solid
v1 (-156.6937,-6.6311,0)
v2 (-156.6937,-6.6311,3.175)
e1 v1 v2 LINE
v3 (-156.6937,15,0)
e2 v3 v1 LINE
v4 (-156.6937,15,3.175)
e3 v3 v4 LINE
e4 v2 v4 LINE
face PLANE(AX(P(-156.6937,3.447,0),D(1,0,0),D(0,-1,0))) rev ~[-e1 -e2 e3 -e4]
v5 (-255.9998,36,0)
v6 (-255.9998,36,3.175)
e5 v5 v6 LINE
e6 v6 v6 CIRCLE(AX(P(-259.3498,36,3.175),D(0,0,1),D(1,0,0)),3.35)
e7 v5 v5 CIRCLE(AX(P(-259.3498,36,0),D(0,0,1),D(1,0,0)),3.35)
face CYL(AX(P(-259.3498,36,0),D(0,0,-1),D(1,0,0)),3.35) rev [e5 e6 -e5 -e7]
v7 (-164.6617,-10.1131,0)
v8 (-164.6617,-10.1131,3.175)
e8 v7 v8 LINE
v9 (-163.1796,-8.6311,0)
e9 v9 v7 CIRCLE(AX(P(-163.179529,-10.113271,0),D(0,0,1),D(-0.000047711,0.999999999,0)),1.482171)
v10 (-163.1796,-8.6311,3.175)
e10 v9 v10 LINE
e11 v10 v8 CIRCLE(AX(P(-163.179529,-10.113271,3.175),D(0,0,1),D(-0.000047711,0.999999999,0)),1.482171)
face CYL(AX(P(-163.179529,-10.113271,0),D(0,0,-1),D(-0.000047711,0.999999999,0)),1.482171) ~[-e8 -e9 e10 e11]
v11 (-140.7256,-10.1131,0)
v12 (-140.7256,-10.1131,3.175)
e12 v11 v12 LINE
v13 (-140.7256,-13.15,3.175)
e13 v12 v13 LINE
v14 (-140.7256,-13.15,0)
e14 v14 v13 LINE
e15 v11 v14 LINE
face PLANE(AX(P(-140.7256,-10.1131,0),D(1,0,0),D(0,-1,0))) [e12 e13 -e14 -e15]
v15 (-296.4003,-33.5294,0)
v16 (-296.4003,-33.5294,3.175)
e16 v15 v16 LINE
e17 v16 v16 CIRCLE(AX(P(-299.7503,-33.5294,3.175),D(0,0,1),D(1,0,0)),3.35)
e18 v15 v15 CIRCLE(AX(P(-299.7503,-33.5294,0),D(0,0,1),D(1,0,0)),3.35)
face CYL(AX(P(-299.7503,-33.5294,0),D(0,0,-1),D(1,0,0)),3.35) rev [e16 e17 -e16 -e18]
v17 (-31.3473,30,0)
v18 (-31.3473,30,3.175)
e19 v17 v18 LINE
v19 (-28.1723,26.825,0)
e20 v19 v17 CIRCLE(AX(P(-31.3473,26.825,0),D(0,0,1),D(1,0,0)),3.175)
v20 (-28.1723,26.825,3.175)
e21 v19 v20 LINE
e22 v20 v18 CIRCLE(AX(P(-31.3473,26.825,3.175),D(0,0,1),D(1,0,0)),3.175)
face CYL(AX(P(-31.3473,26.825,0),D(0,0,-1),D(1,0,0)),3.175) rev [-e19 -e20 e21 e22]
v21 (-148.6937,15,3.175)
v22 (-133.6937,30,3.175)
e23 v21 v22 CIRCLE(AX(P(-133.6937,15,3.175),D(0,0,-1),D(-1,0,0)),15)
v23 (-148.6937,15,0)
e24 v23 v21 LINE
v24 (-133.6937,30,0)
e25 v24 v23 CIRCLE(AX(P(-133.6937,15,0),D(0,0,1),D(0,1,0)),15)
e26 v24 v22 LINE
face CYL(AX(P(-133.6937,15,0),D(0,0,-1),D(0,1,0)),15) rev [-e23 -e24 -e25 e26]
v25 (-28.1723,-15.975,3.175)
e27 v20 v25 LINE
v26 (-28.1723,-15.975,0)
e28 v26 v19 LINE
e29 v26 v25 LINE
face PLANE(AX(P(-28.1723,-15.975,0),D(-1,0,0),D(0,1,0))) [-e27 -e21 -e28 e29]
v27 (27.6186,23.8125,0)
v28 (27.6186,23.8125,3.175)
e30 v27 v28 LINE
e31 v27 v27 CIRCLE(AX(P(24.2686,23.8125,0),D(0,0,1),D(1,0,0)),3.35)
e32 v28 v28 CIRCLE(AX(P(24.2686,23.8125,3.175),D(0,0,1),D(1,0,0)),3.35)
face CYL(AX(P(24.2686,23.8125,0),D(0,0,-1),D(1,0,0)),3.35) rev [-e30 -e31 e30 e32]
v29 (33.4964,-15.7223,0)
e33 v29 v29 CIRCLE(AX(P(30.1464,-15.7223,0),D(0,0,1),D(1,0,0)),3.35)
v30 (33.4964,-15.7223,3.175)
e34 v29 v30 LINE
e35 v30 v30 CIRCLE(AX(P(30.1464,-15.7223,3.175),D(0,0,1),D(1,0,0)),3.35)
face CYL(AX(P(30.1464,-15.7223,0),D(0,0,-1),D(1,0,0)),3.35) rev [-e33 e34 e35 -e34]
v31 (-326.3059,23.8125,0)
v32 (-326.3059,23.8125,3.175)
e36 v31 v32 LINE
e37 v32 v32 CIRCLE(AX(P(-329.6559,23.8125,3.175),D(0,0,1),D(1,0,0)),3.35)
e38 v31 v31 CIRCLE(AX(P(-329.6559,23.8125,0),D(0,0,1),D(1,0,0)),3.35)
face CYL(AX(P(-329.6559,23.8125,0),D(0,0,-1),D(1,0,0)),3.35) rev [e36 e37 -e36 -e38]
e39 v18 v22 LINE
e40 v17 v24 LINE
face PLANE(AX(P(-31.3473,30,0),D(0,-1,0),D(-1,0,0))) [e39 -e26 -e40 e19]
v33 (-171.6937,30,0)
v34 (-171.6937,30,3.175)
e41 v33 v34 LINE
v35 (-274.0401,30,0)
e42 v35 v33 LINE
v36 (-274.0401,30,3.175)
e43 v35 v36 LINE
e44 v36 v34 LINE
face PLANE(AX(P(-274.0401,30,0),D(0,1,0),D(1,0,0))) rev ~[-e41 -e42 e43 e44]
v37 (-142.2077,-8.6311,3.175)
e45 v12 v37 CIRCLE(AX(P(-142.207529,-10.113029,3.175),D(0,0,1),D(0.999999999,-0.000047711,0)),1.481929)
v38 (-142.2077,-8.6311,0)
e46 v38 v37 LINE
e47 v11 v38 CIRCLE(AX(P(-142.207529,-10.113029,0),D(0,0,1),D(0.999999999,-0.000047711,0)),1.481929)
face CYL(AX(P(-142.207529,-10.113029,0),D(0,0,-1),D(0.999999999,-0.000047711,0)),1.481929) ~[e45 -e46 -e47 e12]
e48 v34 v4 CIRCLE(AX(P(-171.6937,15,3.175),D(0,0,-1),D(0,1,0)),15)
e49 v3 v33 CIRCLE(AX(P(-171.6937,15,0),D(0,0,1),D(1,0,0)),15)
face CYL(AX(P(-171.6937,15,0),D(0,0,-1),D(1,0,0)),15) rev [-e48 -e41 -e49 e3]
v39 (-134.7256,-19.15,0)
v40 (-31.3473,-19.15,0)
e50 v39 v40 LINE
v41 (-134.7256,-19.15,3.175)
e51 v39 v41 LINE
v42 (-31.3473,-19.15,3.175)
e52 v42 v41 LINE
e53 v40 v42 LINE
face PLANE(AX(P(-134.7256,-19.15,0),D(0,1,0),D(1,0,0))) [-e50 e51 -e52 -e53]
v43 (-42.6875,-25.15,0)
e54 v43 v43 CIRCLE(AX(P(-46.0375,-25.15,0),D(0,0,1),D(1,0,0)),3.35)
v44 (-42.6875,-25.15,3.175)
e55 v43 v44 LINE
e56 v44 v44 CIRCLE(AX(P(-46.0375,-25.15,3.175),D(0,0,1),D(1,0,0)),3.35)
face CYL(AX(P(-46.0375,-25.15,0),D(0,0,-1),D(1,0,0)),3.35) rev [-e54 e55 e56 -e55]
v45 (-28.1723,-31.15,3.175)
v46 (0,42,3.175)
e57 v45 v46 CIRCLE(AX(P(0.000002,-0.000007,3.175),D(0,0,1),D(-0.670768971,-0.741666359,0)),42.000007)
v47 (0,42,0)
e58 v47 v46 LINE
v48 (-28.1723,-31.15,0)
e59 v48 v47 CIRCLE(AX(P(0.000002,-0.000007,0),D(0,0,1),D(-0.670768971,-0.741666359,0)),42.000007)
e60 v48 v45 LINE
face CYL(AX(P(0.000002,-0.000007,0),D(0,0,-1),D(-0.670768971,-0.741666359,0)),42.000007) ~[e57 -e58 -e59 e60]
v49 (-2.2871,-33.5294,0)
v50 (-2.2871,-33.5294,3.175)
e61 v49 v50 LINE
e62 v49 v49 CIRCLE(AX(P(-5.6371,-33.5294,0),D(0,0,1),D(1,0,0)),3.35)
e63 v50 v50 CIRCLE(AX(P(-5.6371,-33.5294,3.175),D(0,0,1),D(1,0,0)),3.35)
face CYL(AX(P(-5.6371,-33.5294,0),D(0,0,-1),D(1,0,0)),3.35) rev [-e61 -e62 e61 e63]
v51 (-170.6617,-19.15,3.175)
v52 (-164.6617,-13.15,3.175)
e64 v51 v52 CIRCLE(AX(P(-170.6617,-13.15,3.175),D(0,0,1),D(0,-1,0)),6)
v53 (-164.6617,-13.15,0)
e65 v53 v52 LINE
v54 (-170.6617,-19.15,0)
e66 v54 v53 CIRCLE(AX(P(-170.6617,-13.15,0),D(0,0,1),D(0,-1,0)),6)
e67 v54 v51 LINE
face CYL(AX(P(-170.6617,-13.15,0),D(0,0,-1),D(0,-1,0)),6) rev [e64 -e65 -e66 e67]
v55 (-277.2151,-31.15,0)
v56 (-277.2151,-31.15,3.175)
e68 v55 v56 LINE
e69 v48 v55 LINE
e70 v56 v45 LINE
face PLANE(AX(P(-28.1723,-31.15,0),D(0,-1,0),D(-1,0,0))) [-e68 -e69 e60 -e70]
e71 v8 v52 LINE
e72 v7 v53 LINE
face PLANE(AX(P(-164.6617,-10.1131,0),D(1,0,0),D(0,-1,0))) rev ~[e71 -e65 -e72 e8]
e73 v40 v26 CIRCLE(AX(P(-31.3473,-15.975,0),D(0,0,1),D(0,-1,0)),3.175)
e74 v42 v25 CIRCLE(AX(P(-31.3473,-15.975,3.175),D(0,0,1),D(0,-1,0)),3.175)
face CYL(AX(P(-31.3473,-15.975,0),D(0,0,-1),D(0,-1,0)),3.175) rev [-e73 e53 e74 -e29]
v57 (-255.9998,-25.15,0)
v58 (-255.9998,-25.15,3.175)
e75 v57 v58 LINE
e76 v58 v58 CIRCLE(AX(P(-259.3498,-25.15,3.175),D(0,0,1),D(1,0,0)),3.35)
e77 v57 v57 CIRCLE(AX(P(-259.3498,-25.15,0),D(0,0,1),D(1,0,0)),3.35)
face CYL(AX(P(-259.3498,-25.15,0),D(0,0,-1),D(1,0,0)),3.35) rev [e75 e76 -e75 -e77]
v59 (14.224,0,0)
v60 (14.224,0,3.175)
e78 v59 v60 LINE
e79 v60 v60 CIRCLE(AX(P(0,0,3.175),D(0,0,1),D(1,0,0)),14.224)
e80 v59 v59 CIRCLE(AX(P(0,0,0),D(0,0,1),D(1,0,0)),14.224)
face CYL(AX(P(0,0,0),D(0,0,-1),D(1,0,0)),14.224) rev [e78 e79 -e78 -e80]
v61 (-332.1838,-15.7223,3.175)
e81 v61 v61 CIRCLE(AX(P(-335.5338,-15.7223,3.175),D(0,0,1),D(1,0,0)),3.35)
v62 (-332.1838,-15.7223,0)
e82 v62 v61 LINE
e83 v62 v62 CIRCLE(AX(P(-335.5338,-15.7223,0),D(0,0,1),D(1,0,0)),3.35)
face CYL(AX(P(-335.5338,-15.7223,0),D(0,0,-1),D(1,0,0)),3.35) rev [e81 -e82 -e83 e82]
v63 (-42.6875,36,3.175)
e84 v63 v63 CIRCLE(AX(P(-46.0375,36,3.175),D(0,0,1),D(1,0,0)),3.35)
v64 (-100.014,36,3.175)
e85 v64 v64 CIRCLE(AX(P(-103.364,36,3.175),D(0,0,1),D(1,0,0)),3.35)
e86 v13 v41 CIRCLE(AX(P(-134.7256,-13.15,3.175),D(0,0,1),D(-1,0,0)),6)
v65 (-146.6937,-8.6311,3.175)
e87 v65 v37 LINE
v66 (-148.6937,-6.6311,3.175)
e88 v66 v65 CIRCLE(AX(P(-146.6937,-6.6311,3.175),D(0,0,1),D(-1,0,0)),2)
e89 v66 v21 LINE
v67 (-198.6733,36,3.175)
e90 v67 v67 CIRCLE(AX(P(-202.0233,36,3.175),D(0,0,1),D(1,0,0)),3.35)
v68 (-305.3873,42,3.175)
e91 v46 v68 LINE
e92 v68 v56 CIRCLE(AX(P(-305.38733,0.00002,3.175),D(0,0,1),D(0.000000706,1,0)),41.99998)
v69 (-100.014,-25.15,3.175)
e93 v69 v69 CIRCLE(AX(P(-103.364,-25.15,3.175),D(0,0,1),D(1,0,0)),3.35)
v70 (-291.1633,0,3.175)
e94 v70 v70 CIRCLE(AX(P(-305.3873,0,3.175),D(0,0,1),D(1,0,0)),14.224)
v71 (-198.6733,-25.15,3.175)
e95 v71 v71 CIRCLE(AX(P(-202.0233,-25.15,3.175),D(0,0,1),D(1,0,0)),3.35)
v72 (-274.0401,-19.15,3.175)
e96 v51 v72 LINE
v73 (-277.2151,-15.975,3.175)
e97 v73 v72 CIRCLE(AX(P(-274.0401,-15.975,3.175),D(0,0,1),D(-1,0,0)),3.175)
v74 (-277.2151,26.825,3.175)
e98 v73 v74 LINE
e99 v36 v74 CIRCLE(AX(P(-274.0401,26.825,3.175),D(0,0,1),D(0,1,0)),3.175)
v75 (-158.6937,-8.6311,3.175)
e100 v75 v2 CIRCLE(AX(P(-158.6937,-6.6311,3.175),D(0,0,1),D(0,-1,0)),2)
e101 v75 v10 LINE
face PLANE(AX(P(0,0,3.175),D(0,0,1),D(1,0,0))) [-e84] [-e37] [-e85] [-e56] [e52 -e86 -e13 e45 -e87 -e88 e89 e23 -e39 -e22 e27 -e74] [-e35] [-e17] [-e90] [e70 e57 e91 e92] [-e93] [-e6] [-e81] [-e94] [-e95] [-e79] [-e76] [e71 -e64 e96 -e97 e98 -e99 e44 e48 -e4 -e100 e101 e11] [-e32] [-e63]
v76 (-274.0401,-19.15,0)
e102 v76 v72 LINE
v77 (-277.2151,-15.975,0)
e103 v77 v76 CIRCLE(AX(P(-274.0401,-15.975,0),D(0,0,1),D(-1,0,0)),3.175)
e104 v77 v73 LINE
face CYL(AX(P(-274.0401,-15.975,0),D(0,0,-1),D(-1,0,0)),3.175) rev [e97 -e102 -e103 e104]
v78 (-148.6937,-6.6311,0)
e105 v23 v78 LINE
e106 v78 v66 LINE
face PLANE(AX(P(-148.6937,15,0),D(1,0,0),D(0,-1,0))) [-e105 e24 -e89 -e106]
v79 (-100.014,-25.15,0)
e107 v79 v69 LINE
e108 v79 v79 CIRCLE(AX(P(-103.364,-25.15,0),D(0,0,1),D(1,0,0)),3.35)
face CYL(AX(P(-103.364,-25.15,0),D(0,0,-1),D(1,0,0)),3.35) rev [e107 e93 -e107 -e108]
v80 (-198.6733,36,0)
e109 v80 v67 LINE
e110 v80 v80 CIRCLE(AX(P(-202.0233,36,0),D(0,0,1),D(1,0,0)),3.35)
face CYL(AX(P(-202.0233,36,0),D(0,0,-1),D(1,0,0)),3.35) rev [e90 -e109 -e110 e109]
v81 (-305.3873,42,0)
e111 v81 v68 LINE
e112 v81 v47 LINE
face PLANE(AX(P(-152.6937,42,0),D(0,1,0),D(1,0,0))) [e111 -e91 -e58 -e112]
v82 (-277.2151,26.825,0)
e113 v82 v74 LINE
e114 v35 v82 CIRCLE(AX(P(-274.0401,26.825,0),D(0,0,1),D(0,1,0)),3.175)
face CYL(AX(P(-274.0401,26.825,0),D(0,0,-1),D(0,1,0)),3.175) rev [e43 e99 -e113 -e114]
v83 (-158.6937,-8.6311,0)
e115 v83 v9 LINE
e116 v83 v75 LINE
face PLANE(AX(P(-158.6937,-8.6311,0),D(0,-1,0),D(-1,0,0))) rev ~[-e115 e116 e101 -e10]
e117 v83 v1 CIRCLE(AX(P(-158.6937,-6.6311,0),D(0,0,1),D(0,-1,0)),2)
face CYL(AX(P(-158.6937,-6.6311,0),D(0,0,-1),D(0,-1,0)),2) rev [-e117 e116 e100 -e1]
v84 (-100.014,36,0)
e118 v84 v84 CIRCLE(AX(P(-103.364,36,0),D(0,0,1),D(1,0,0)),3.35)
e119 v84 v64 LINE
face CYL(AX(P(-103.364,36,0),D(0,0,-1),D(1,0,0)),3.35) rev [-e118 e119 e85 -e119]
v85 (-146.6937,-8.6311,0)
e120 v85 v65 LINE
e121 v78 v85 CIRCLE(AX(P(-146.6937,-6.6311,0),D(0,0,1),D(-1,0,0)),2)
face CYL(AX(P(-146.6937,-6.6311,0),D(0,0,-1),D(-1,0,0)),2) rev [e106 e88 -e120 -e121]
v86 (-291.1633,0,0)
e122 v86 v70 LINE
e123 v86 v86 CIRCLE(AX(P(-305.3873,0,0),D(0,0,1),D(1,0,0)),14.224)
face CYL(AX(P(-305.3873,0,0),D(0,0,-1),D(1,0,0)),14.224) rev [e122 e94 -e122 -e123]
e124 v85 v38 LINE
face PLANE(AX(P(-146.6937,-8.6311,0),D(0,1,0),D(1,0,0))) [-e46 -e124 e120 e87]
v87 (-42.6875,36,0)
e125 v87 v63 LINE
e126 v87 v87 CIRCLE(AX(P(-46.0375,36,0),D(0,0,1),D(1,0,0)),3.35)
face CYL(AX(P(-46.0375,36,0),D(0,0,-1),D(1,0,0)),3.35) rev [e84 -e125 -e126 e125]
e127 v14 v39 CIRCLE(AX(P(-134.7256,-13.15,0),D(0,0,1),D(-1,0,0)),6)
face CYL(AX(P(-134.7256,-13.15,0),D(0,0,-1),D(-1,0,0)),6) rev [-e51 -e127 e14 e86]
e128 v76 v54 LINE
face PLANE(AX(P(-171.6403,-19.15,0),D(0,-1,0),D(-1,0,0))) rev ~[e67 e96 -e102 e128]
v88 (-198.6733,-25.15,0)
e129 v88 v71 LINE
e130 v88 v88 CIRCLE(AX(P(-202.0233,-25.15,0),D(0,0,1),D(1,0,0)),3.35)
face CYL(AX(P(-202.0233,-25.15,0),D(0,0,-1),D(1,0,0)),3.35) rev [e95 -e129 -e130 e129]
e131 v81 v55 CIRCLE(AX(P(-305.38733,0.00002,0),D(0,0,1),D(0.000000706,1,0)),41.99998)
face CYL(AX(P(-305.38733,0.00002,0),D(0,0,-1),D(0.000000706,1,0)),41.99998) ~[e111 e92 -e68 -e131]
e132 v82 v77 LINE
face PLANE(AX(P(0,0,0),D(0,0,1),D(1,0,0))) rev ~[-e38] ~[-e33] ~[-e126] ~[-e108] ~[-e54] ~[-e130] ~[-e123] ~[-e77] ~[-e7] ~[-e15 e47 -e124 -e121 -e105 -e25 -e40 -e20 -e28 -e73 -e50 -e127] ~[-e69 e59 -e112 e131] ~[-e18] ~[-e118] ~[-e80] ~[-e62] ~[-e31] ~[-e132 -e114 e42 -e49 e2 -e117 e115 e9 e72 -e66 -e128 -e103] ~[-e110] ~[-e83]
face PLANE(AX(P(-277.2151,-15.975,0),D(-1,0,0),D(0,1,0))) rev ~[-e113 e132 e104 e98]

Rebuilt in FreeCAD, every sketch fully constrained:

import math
import FreeCAD as App
import Part
import Sketcher
from FreeCAD import Vector

doc = App.newDocument("Part")
body = doc.addObject("PartDesign::Body", "Body")

# Sketch on XY plane
sketch1 = body.newObject("Sketcher::SketchObject", "Sketch")
sketch1.AttachmentSupport = (doc.getObject("XY_Plane"), [""])
sketch1.MapMode = "FlatFace"
sketch1.addGeometry([
    Part.ArcOfCircle(Part.Circle(Vector(0, 0, 0), Vector(0, 0, 1), 42), math.radians(-132), math.radians(90)),  # 0
    Part.LineSegment(Vector(0, 42, 0), Vector(-305.4, 42, 0)),  # 1
    Part.ArcOfCircle(Part.Circle(Vector(-305.4, 0, 0), Vector(0, 0, 1), 42), math.radians(90), math.radians(312)),  # 2
    Part.LineSegment(Vector(-277.2, -31.1, 0), Vector(-28.2, -31.1, 0)),  # 3
    Part.ArcOfCircle(Part.Circle(Vector(-158.7, -6.6, 0), Vector(0, 0, 1), 2), math.radians(-90), math.radians(0)),  # 4
    Part.LineSegment(Vector(-158.7, -8.6, 0), Vector(-163.2, -8.6, 0)),  # 5
    Part.ArcOfCircle(Part.Circle(Vector(-163.2, -10.1, 0), Vector(0, 0, 1), 1.5), math.radians(90), math.radians(180)),  # 6
    Part.LineSegment(Vector(-164.7, -10.1, 0), Vector(-164.7, -13.2, 0)),  # 7
    Part.ArcOfCircle(Part.Circle(Vector(-170.7, -13.2, 0), Vector(0, 0, 1), 6), math.radians(-90), math.radians(0)),  # 8
    Part.LineSegment(Vector(-170.7, -19.1, 0), Vector(-274, -19.1, 0)),  # 9
    Part.ArcOfCircle(Part.Circle(Vector(-274, -16, 0), Vector(0, 0, 1), 3.2), math.radians(180), math.radians(270)),  # 10
    Part.LineSegment(Vector(-277.2, -16, 0), Vector(-277.2, 26.8, 0)),  # 11
    Part.ArcOfCircle(Part.Circle(Vector(-274, 26.8, 0), Vector(0, 0, 1), 3.2), math.radians(90), math.radians(180)),  # 12
    Part.LineSegment(Vector(-274, 30, 0), Vector(-171.7, 30, 0)),  # 13
    Part.ArcOfCircle(Part.Circle(Vector(-171.7, 15, 0), Vector(0, 0, 1), 15), math.radians(0), math.radians(90)),  # 14
    Part.LineSegment(Vector(-156.7, 15, 0), Vector(-156.7, -6.6, 0)),  # 15
    Part.Circle(Vector(-299.8, -33.5, 0), Vector(0, 0, 1), 3.4),  # 16
    Part.Circle(Vector(-259.3, -25.1, 0), Vector(0, 0, 1), 3.4),  # 17
    Part.Circle(Vector(-202, -25.1, 0), Vector(0, 0, 1), 3.4),  # 18
    Part.Circle(Vector(-335.5, -15.7, 0), Vector(0, 0, 1), 3.4),  # 19
    Part.Circle(Vector(-103.4, -25.1, 0), Vector(0, 0, 1), 3.4),  # 20
    Part.Circle(Vector(-5.6, -33.5, 0), Vector(0, 0, 1), 3.4),  # 21
    Part.Circle(Vector(-46, -25.1, 0), Vector(0, 0, 1), 3.4),  # 22
    Part.Circle(Vector(30.1, -15.7, 0), Vector(0, 0, 1), 3.4),  # 23
    Part.Circle(Vector(-305.4, 0, 0), Vector(0, 0, 1), 14.2),  # 24
    Part.Circle(Vector(-329.7, 23.8, 0), Vector(0, 0, 1), 3.4),  # 25
    Part.Circle(Vector(-259.3, 36, 0), Vector(0, 0, 1), 3.4),  # 26
    Part.Circle(Vector(-202, 36, 0), Vector(0, 0, 1), 3.4),  # 27
    Part.ArcOfCircle(Part.Circle(Vector(-133.7, 15, 0), Vector(0, 0, 1), 15), math.radians(90), math.radians(180)),  # 28
    Part.LineSegment(Vector(-133.7, 30, 0), Vector(-31.3, 30, 0)),  # 29
    Part.ArcOfCircle(Part.Circle(Vector(-31.3, 26.8, 0), Vector(0, 0, 1), 3.2), math.radians(0), math.radians(90)),  # 30
    Part.LineSegment(Vector(-28.2, 26.8, 0), Vector(-28.2, -16, 0)),  # 31
    Part.ArcOfCircle(Part.Circle(Vector(-31.3, -16, 0), Vector(0, 0, 1), 3.2), math.radians(-90), math.radians(0)),  # 32
    Part.LineSegment(Vector(-31.3, -19.1, 0), Vector(-134.7, -19.1, 0)),  # 33
    Part.ArcOfCircle(Part.Circle(Vector(-134.7, -13.2, 0), Vector(0, 0, 1), 6), math.radians(180), math.radians(270)),  # 34
    Part.LineSegment(Vector(-140.7, -13.2, 0), Vector(-140.7, -10.1, 0)),  # 35
    Part.ArcOfCircle(Part.Circle(Vector(-142.2, -10.1, 0), Vector(0, 0, 1), 1.5), math.radians(0), math.radians(90)),  # 36
    Part.LineSegment(Vector(-142.2, -8.6, 0), Vector(-146.7, -8.6, 0)),  # 37
    Part.ArcOfCircle(Part.Circle(Vector(-146.7, -6.6, 0), Vector(0, 0, 1), 2), math.radians(180), math.radians(270)),  # 38
    Part.LineSegment(Vector(-148.7, -6.6, 0), Vector(-148.7, 15, 0)),  # 39
    Part.Circle(Vector(0, 0, 0), Vector(0, 0, 1), 14.2),  # 40
    Part.Circle(Vector(-103.4, 36, 0), Vector(0, 0, 1), 3.4),  # 41
    Part.Circle(Vector(24.3, 23.8, 0), Vector(0, 0, 1), 3.4),  # 42
    Part.Circle(Vector(-46, 36, 0), Vector(0, 0, 1), 3.4),  # 43
], False)
sketch1.addConstraint([
    Sketcher.Constraint("Tangent", 0, 2, 1, 1),
    Sketcher.Constraint("Tangent", 1, 2, 2, 1),
    Sketcher.Constraint("Coincident", 2, 2, 3, 1),
    Sketcher.Constraint("Coincident", 3, 2, 0, 1),
    Sketcher.Constraint("Tangent", 4, 1, 5, 1),
    Sketcher.Constraint("Tangent", 5, 2, 6, 1),
    Sketcher.Constraint("Tangent", 6, 2, 7, 1),
    Sketcher.Constraint("Tangent", 7, 2, 8, 2),
    Sketcher.Constraint("Tangent", 8, 1, 9, 1),
    Sketcher.Constraint("Tangent", 9, 2, 10, 2),
    Sketcher.Constraint("Tangent", 10, 1, 11, 1),
    Sketcher.Constraint("Tangent", 11, 2, 12, 2),
    Sketcher.Constraint("Tangent", 12, 1, 13, 1),
    Sketcher.Constraint("Tangent", 13, 2, 14, 2),
    Sketcher.Constraint("Tangent", 14, 1, 15, 1),
    Sketcher.Constraint("Tangent", 15, 2, 4, 2),
    Sketcher.Constraint("Tangent", 28, 1, 29, 1),
    Sketcher.Constraint("Tangent", 29, 2, 30, 2),
    Sketcher.Constraint("Tangent", 30, 1, 31, 1),
    Sketcher.Constraint("Tangent", 31, 2, 32, 2),
    Sketcher.Constraint("Tangent", 32, 1, 33, 1),
    Sketcher.Constraint("Tangent", 33, 2, 34, 2),
    Sketcher.Constraint("Tangent", 34, 1, 35, 1),
    Sketcher.Constraint("Tangent", 35, 2, 36, 1),
    Sketcher.Constraint("Tangent", 36, 2, 37, 1),
    Sketcher.Constraint("Tangent", 37, 2, 38, 2),
    Sketcher.Constraint("Tangent", 38, 1, 39, 1),
    Sketcher.Constraint("Tangent", 39, 2, 28, 2),
    Sketcher.Constraint("Horizontal", 1),
    Sketcher.Constraint("Horizontal", 3),
    Sketcher.Constraint("Horizontal", 5),
    Sketcher.Constraint("Vertical", 7),
    Sketcher.Constraint("Horizontal", 9),
    Sketcher.Constraint("Vertical", 11),
    Sketcher.Constraint("Horizontal", 13),
    Sketcher.Constraint("Vertical", 15),
    Sketcher.Constraint("Horizontal", 29),
    Sketcher.Constraint("Vertical", 31),
    Sketcher.Constraint("Horizontal", 33),
    Sketcher.Constraint("Vertical", 35),
    Sketcher.Constraint("Horizontal", 37),
    Sketcher.Constraint("Vertical", 39),
    Sketcher.Constraint("Coincident", 0, 3, -1, 1),
    Sketcher.Constraint("Coincident", 40, 3, -1, 1),
    Sketcher.Constraint("Coincident", 24, 3, 2, 3),
    Sketcher.Constraint("Equal", 0, 2),
    Sketcher.Constraint("Equal", 10, 12),
    Sketcher.Constraint("Equal", 16, 17),
    Sketcher.Constraint("Equal", 17, 18),
    Sketcher.Constraint("Equal", 18, 19),
    Sketcher.Constraint("Equal", 19, 20),
    Sketcher.Constraint("Equal", 20, 21),
    Sketcher.Constraint("Equal", 21, 22),
    Sketcher.Constraint("Equal", 22, 23),
    Sketcher.Constraint("Equal", 23, 25),
    Sketcher.Constraint("Equal", 25, 26),
    Sketcher.Constraint("Equal", 26, 27),
    Sketcher.Constraint("Equal", 14, 28),
    Sketcher.Constraint("Equal", 12, 30),
    Sketcher.Constraint("Equal", 30, 32),
    Sketcher.Constraint("Equal", 8, 34),
    Sketcher.Constraint("Equal", 6, 36),
    Sketcher.Constraint("Equal", 4, 38),
    Sketcher.Constraint("Equal", 24, 40),
    Sketcher.Constraint("Equal", 27, 41),
    Sketcher.Constraint("Equal", 41, 42),
    Sketcher.Constraint("Equal", 42, 43),
    Sketcher.Constraint("Horizontal", 17, 3, 18, 3),
    Sketcher.Constraint("Horizontal", 18, 3, 20, 3),
    Sketcher.Constraint("Horizontal", 16, 3, 21, 3),
    Sketcher.Constraint("Horizontal", 20, 3, 22, 3),
    Sketcher.Constraint("Horizontal", 19, 3, 23, 3),
    Sketcher.Constraint("Horizontal", 26, 3, 27, 3),
    Sketcher.Constraint("Horizontal", 14, 3, 28, 3),
    Sketcher.Constraint("Horizontal", 10, 3, 32, 3),
    Sketcher.Constraint("Horizontal", 6, 3, 36, 3),
    Sketcher.Constraint("Horizontal", 27, 3, 41, 3),
    Sketcher.Constraint("Horizontal", 25, 3, 42, 3),
    Sketcher.Constraint("Horizontal", 41, 3, 43, 3),
    Sketcher.Constraint("Vertical", 17, 3, 26, 3),
    Sketcher.Constraint("Vertical", 18, 3, 27, 3),
    Sketcher.Constraint("Vertical", 20, 3, 41, 3),
    Sketcher.Constraint("Vertical", 22, 3, 43, 3),
    Sketcher.Constraint("Vertical", 2, 2, 10, 1),
    Sketcher.Constraint("Vertical", 3, 2, 30, 1),
    Sketcher.Constraint("Equal", 13, 29),
    Sketcher.Constraint("Equal", 9, 33),
    Sketcher.Constraint("Radius", 8, 6.0),
    Sketcher.Constraint("Radius", 14, 15.0),
    Sketcher.Constraint("Diameter", 16, 6.7),
    Sketcher.Constraint("Diameter", 24, 28.448),
    Sketcher.Constraint("DistanceY", -1, 1, 14, 3, 15.0),
    Sketcher.Constraint("Radius", 0, 42.0),
    Sketcher.Constraint("Radius", 4, 2.0),
    Sketcher.Constraint("Radius", 10, 3.175),
    Sketcher.Constraint("DistanceY", 43, 3, 0, 2, 6.0),
    Sketcher.Constraint("DistanceY", 2, 2, 17, 3, 6.0),
    Sketcher.Constraint("DistanceY", 17, 3, 9, 2, 6.0),
    Sketcher.Constraint("DistanceY", 11, 1, 11, 2, 42.8),
    Sketcher.Constraint("Radius", 6, 1.482),
    Sketcher.Constraint("DistanceX", 4, 3, 28, 3, 25.0),
    Sketcher.Constraint("DistanceX", 5, 2, 5, 1, 4.486),
    Sketcher.Constraint("DistanceY", 7, 2, 7, 1, 3.037),
    Sketcher.Constraint("DistanceX", 10, 3, -1, 1, 274.04),
    Sketcher.Constraint("DistanceX", 4, 3, 23, 3, 188.84),
    Sketcher.Constraint("DistanceX", 20, 3, -1, 1, 103.364),
    Sketcher.Constraint("DistanceX", 21, 3, -1, 1, 5.637),
    Sketcher.Constraint("DistanceX", 25, 3, -1, 1, 329.656),
    Sketcher.Constraint("DistanceX", 2, 3, 16, 3, 5.637),
    Sketcher.Constraint("DistanceX", 17, 3, 8, 3, 88.688),
    Sketcher.Constraint("DistanceY", 16, 3, 19, 3, 17.807),
    Sketcher.Constraint("DistanceX", 19, 3, 17, 3, 76.184),
    Sketcher.Constraint("DistanceX", 6, 3, 22, 3, 117.142),
    Sketcher.Constraint("DistanceY", 16, 3, 25, 3, 57.342),
    Sketcher.Constraint("DistanceX", 30, 3, 42, 3, 55.616),
    Sketcher.Constraint("DistanceY", 16, 3, -1, 1, 33.5294),
    Sketcher.Constraint("DistanceX", 18, 3, -1, 1, 202.0233),
])
pad1 = body.newObject("PartDesign::Pad", "Pad")
pad1.Profile = sketch1
pad1.Length = 3.175

doc.recompute()
